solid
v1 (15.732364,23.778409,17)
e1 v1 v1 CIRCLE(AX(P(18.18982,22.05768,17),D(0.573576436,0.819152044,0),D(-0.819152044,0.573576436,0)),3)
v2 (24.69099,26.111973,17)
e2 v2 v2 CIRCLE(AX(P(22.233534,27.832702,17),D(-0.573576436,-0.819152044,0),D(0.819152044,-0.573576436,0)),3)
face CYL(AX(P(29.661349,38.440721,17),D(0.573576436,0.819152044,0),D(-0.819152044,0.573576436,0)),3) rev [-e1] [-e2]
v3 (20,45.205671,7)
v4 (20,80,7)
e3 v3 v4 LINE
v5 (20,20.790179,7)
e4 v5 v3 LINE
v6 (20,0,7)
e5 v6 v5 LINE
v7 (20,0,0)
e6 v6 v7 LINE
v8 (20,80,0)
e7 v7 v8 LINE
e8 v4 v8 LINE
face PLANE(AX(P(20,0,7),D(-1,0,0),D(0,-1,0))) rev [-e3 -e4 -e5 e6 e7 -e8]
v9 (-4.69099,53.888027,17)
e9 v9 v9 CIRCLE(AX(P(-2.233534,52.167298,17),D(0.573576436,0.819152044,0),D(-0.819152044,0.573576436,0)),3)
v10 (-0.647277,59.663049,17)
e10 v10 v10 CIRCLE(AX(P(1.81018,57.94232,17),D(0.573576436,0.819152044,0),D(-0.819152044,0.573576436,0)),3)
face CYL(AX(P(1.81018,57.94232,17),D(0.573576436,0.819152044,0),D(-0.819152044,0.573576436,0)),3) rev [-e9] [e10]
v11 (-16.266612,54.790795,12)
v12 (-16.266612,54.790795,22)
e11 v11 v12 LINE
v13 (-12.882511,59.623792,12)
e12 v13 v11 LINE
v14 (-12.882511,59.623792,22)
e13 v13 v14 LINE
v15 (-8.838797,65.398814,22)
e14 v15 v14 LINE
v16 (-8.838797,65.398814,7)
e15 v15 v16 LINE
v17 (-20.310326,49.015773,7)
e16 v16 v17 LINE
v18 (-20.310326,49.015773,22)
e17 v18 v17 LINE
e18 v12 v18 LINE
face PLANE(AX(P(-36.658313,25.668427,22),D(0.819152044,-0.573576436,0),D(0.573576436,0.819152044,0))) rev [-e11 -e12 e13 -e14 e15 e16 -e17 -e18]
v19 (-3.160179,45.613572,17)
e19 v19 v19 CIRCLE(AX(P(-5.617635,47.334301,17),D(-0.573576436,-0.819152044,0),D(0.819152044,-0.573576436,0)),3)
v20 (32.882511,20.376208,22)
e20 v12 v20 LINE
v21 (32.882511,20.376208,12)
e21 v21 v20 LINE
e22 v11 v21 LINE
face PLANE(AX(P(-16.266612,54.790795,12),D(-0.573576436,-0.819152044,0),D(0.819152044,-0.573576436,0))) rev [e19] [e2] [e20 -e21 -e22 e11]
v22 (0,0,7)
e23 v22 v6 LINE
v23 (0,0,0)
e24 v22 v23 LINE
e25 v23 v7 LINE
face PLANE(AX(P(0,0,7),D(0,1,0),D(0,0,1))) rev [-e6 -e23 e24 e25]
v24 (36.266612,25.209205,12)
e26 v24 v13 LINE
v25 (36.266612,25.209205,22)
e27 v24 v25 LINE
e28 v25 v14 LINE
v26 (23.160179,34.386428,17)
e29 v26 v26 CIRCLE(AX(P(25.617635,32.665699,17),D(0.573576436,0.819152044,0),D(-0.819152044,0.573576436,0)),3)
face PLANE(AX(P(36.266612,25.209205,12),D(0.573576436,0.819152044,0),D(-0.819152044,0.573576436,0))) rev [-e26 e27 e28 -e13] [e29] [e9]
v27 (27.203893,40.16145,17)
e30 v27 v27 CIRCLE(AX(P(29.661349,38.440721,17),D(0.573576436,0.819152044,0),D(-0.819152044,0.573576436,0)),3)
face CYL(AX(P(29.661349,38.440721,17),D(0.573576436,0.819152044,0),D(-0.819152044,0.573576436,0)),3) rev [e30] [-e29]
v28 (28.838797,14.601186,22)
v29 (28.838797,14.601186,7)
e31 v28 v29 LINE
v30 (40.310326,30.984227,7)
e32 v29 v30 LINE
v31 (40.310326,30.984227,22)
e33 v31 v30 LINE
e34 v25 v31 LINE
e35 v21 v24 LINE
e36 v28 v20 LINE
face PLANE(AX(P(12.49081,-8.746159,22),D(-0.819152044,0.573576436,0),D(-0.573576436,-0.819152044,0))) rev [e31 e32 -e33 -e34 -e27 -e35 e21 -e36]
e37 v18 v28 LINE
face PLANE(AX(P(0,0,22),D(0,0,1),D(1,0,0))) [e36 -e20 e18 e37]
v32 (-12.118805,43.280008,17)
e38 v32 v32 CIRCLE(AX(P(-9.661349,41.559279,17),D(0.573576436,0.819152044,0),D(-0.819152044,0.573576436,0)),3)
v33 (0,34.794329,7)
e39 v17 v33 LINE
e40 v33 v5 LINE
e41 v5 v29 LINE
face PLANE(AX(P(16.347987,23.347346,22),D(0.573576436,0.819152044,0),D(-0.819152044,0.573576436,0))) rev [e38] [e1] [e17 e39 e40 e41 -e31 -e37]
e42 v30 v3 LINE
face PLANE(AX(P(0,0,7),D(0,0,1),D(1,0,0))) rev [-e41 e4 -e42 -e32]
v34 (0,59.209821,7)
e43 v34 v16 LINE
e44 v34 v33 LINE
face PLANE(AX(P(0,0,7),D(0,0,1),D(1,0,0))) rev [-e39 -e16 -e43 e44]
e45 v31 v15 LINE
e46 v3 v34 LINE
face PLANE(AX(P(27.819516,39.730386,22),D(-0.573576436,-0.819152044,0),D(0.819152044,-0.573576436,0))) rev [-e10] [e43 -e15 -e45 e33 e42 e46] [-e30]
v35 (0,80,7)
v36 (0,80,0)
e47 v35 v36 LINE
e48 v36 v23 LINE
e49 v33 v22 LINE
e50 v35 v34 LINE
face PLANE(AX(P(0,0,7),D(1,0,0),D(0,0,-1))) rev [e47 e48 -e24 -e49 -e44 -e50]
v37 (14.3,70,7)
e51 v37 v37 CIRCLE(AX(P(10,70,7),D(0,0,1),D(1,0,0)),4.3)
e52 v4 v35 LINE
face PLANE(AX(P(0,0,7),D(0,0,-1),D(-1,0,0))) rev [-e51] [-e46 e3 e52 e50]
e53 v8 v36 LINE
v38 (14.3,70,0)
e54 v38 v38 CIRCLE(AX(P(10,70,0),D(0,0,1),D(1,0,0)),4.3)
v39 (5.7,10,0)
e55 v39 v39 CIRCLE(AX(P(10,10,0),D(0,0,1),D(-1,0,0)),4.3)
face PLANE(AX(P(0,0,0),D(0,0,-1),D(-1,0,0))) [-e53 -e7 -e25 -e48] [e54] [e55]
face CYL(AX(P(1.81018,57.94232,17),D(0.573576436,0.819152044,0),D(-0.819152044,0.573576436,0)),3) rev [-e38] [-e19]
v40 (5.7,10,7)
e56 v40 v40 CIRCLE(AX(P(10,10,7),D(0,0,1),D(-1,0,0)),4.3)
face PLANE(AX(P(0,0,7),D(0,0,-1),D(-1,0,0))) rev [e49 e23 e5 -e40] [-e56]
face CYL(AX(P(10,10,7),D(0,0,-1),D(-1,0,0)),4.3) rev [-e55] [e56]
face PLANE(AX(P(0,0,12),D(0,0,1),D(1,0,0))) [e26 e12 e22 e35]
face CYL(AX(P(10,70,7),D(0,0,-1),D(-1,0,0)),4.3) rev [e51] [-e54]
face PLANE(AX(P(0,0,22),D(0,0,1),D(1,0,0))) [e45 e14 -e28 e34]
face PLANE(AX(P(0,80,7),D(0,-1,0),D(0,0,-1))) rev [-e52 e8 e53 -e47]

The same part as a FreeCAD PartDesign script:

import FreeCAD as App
import Part
import Sketcher

V = App.Vector
Q = App.Units.Quantity

doc = App.newDocument("Part")
body = doc.addObject("PartDesign::Body", "Body")

sketch1 = body.newObject("Sketcher::SketchObject", "Sketch")
sketch1.AttachmentSupport = (doc.getObject("XY_Plane"), [""])
sketch1.MapMode = "FlatFace"
sketch1.addGeometry(Part.LineSegment(V(0, 80, 0), V(0, 0, 0)), False)
sketch1.addGeometry(Part.LineSegment(V(0, 0, 0), V(20, 0, 0)), False)
sketch1.addGeometry(Part.LineSegment(V(20, 0, 0), V(20, 80, 0)), False)
sketch1.addGeometry(Part.LineSegment(V(20, 80, 0), V(0, 80, 0)), False)
sketch1.addGeometry(Part.Circle(V(10, 10, 0), V(0, 0, 1), 4.3), False)
sketch1.addGeometry(Part.Circle(V(10, 70, 0), V(0, 0, 1), 4.3), False)
sketch1.addConstraint(Sketcher.Constraint("Coincident", 0, 2, 1, 1))
sketch1.addConstraint(Sketcher.Constraint("Coincident", 1, 2, 2, 1))
sketch1.addConstraint(Sketcher.Constraint("Coincident", 2, 2, 3, 1))
sketch1.addConstraint(Sketcher.Constraint("Coincident", 3, 2, 0, 1))
sketch1.addConstraint(Sketcher.Constraint("Vertical", 0))
sketch1.addConstraint(Sketcher.Constraint("Horizontal", 1))
sketch1.addConstraint(Sketcher.Constraint("Vertical", 2))
sketch1.addConstraint(Sketcher.Constraint("Horizontal", 3))
sketch1.addConstraint(Sketcher.Constraint("Coincident", 0, 2, -1, 1))
sketch1.addConstraint(Sketcher.Constraint("Equal", 4, 5))
sketch1.addConstraint(Sketcher.Constraint("Vertical", 4, 3, 5, 3))
sketch1.addConstraint(Sketcher.Constraint("Diameter", 4, 8.6))
sketch1.addConstraint(Sketcher.Constraint("DistanceX", 1, 1, 1, 2, 20.0))
sketch1.addConstraint(Sketcher.Constraint("DistanceY", 0, 2, 0, 1, 80.0))
sketch1.addConstraint(Sketcher.Constraint("DistanceX", -1, 1, 4, 3, 10.0))
sketch1.addConstraint(Sketcher.Constraint("DistanceY", -1, 1, 4, 3, 10.0))
sketch1.addConstraint(Sketcher.Constraint("DistanceY", -1, 1, 5, 3, 70.0))
pad1 = body.newObject("PartDesign::Pad", "Pad")
pad1.Profile = sketch1
pad1.Length = 7

sketch2 = body.newObject("Sketcher::SketchObject", "Sketch001")
sketch2.AttachmentSupport = (doc.getObject("XY_Plane"), [""])
sketch2.MapMode = "FlatFace"
sketch2.AttachmentOffset = App.Placement(V(0, 0, 7), App.Rotation())
sketch2.addGeometry(Part.LineSegment(V(20, 21, 0), V(29, 15, 0)), False)
sketch2.addGeometry(Part.LineSegment(V(29, 15, 0), V(33, 20, 0)), False)
sketch2.addGeometry(Part.LineSegment(V(33, 20, 0), V(36, 25, 0)), False)
sketch2.addGeometry(Part.LineSegment(V(36, 25, 0), V(40, 31, 0)), False)
sketch2.addGeometry(Part.LineSegment(V(40, 31, 0), V(20, 45, 0)), False)
sketch2.addGeometry(Part.LineSegment(V(20, 45, 0), V(0, 59, 0)), False)
sketch2.addGeometry(Part.LineSegment(V(0, 59, 0), V(-9, 65, 0)), False)
sketch2.addGeometry(Part.LineSegment(V(-9, 65, 0), V(-13, 60, 0)), False)
sketch2.addGeometry(Part.LineSegment(V(-13, 60, 0), V(-16, 55, 0)), False)
sketch2.addGeometry(Part.LineSegment(V(-16, 55, 0), V(-20, 49, 0)), False)
sketch2.addGeometry(Part.LineSegment(V(-20, 49, 0), V(0, 35, 0)), False)
sketch2.addGeometry(Part.LineSegment(V(0, 35, 0), V(20, 21, 0)), False)
sketch2.addConstraint(Sketcher.Constraint("Coincident", 0, 2, 1, 1))
sketch2.addConstraint(Sketcher.Constraint("Coincident", 1, 2, 2, 1))
sketch2.addConstraint(Sketcher.Constraint("Coincident", 2, 2, 3, 1))
sketch2.addConstraint(Sketcher.Constraint("Coincident", 3, 2, 4, 1))
sketch2.addConstraint(Sketcher.Constraint("Coincident", 4, 2, 5, 1))
sketch2.addConstraint(Sketcher.Constraint("Coincident", 5, 2, 6, 1))
sketch2.addConstraint(Sketcher.Constraint("Coincident", 6, 2, 7, 1))
sketch2.addConstraint(Sketcher.Constraint("Coincident", 7, 2, 8, 1))
sketch2.addConstraint(Sketcher.Constraint("Coincident", 8, 2, 9, 1))
sketch2.addConstraint(Sketcher.Constraint("Coincident", 9, 2, 10, 1))
sketch2.addConstraint(Sketcher.Constraint("Coincident", 10, 2, 11, 1))
sketch2.addConstraint(Sketcher.Constraint("Coincident", 11, 2, 0, 1))
sketch2.addConstraint(Sketcher.Constraint("PointOnObject", 5, 2, -2))
sketch2.addConstraint(Sketcher.Constraint("PointOnObject", 10, 2, -2))
sketch2.addConstraint(Sketcher.Constraint("Perpendicular", 0, 1))
sketch2.addConstraint(Sketcher.Constraint("Parallel", 1, 2))
sketch2.addConstraint(Sketcher.Constraint("Parallel", 2, 3))
sketch2.addConstraint(Sketcher.Constraint("Perpendicular", 3, 4))
sketch2.addConstraint(Sketcher.Constraint("Parallel", 4, 5))
sketch2.addConstraint(Sketcher.Constraint("Parallel", 5, 6))
sketch2.addConstraint(Sketcher.Constraint("Perpendicular", 6, 7))
sketch2.addConstraint(Sketcher.Constraint("Parallel", 7, 8))
sketch2.addConstraint(Sketcher.Constraint("Parallel", 8, 9))
sketch2.addConstraint(Sketcher.Constraint("Perpendicular", 9, 10))
sketch2.addConstraint(Sketcher.Constraint("Parallel", 10, 11))
sketch2.addConstraint(Sketcher.Constraint("Vertical", 4, 2, 11, 2))
sketch2.addConstraint(Sketcher.Constraint("Equal", 1, 3))
sketch2.addConstraint(Sketcher.Constraint("Equal", 0, 6))
sketch2.addConstraint(Sketcher.Constraint("Equal", 3, 7))
sketch2.addConstraint(Sketcher.Constraint("Equal", 2, 8))
sketch2.addConstraint(Sketcher.Constraint("Angle", 0, Q("-35 deg")))
sketch2.addConstraint(Sketcher.Constraint("DistanceX", -1, 1, 4, 2, 20.0))
sketch2.addConstraint(Sketcher.Constraint("Distance", 2, 5.9))
sketch2.addConstraint(Sketcher.Constraint("Distance", 1, 7.05))
sketch2.addConstraint(Sketcher.Constraint("Distance", 0, 10.790179))
sketch2.addConstraint(Sketcher.Constraint("DistanceY", -1, 1, 1, 2, 20.376208))
pad2 = body.newObject("PartDesign::Pad", "Pad001")
pad2.Profile = sketch2
pad2.Length = 15

sketch3 = body.newObject("Sketcher::SketchObject", "Sketch002")
sketch3.AttachmentSupport = (doc.getObject("XY_Plane"), [""])
sketch3.MapMode = "FlatFace"
sketch3.AttachmentOffset = App.Placement(V(0, 0, 22), App.Rotation())
sketch3.addGeometry(Part.LineSegment(V(-16, 55, 0), V(33, 20, 0)), False)
sketch3.addGeometry(Part.LineSegment(V(33, 20, 0), V(36, 25, 0)), False)
sketch3.addGeometry(Part.LineSegment(V(36, 25, 0), V(-13, 60, 0)), False)
sketch3.addGeometry(Part.LineSegment(V(-13, 60, 0), V(-16, 55, 0)), False)
sketch3.addConstraint(Sketcher.Constraint("Coincident", 0, 2, 1, 1))
sketch3.addConstraint(Sketcher.Constraint("Coincident", 1, 2, 2, 1))
sketch3.addConstraint(Sketcher.Constraint("Coincident", 2, 2, 3, 1))
sketch3.addConstraint(Sketcher.Constraint("Coincident", 3, 2, 0, 1))
sketch3.addConstraint(Sketcher.Constraint("Perpendicular", 0, 1))
sketch3.addConstraint(Sketcher.Constraint("Perpendicular", 1, 2))
sketch3.addConstraint(Sketcher.Constraint("Perpendicular", 2, 3))
sketch3.addConstraint(Sketcher.Constraint("Angle", 0, Q("-35 deg")))
sketch3.addConstraint(Sketcher.Constraint("Distance", 0, 60.0))
sketch3.addConstraint(Sketcher.Constraint("Distance", 1, 5.9))
sketch3.addConstraint(Sketcher.Constraint("DistanceX", -1, 1, 0, 2, 32.882511))
sketch3.addConstraint(Sketcher.Constraint("DistanceY", -1, 1, 0, 2, 20.376208))
pocket1 = body.newObject("PartDesign::Pocket", "Pocket")
pocket1.Profile = sketch3
pocket1.Length = 10

sketch4 = body.newObject("Sketcher::SketchObject", "Sketch003")
sketch4.Placement = App.Placement(V(27.819516, 39.730386, 0), App.Rotation(V(0.819152044, -0.573576436, 0), V(0, 0, -0.999999999), V(0.573576436, 0.819152044, 0), "ZXY"))
sketch4.addGeometry(Part.Circle(V(2.2, -17, 0), V(0, 0, 1), 3), False)
sketch4.addGeometry(Part.Circle(V(-31.8, -17, 0), V(0, 0, 1), 3), False)
sketch4.addConstraint(Sketcher.Constraint("Equal", 0, 1))
sketch4.addConstraint(Sketcher.Constraint("Horizontal", 0, 3, 1, 3))
sketch4.addConstraint(Sketcher.Constraint("Diameter", 0, 6.0))
sketch4.addConstraint(Sketcher.Constraint("DistanceY", 0, 3, -1, 1, 17.0))
sketch4.addConstraint(Sketcher.Constraint("DistanceX", 1, 3, 0, 3, 34.0))
sketch4.addConstraint(Sketcher.Constraint("DistanceX", -1, 1, 0, 3, 2.248463))
doc.recompute()
hole = body.newObject("PartDesign::Hole", "Hole")
hole.Profile = sketch4
hole.ThreadType = "None"
hole.Diameter = 6
hole.DepthType = "ThroughAll"

doc.recompute()
